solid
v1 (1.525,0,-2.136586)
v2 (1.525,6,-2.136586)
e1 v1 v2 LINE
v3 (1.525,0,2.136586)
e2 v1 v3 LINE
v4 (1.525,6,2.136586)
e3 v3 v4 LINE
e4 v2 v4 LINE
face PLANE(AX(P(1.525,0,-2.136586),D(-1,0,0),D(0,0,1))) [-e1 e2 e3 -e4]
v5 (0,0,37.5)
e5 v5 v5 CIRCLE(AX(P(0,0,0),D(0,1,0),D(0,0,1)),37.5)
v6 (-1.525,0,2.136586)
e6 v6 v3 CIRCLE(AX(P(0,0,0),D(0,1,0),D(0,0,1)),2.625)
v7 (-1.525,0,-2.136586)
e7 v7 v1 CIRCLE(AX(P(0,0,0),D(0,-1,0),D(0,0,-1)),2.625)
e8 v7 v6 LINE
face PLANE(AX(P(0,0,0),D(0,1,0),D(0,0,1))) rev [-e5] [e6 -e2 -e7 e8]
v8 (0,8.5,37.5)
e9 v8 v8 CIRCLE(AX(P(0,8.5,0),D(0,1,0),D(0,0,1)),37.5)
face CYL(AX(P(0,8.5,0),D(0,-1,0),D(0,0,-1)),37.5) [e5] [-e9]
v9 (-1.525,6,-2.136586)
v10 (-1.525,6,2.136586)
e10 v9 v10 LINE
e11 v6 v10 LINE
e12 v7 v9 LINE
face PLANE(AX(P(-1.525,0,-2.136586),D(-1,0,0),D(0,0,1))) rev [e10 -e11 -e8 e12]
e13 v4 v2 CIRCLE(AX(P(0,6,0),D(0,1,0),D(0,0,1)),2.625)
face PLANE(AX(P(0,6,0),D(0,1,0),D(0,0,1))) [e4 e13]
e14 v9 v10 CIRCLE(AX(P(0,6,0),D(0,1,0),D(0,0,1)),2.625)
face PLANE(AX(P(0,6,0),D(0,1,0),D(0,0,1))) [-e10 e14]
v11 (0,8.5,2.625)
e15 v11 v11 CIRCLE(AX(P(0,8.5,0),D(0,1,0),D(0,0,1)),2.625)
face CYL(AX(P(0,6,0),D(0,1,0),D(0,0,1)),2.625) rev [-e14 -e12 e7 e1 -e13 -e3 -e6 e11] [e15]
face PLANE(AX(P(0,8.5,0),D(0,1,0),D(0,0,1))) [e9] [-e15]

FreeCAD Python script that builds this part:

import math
import FreeCAD as App
import Part
import Sketcher

doc = App.newDocument("Part")
body = doc.addObject("PartDesign::Body", "Body")

# Sketch on XZ plane
sketch1 = body.newObject("Sketcher::SketchObject", "Sketch")
sketch1.AttachmentSupport = (doc.getObject("XZ_Plane"), [""])
sketch1.MapMode = "FlatFace"
sketch1.addGeometry(Part.Circle(App.Vector(0, 0, 0), App.Vector(0, 0, 1), 38), False)
sketch1.addConstraint(Sketcher.Constraint("Coincident", 0, 3, -1, 1))
sketch1.addConstraint(Sketcher.Constraint("Diameter", 0, 75.0))
pad1 = body.newObject("PartDesign::Pad", "Pad")
pad1.Profile = sketch1
pad1.Length = 8.5
pad1.Reversed = True

# Sketch on XZ plane
sketch2 = body.newObject("Sketcher::SketchObject", "Sketch001")
sketch2.AttachmentSupport = (doc.getObject("XZ_Plane"), [""])
sketch2.MapMode = "FlatFace"
sketch2.AttachmentOffset = App.Placement(App.Vector(0, 0, -8.5), App.Rotation())
sketch2.addGeometry(Part.Circle(App.Vector(0, 0, 0), App.Vector(0, 0, 1), 2.6), False)
sketch2.addConstraint(Sketcher.Constraint("Coincident", 0, 3, -1, 1))
sketch2.addConstraint(Sketcher.Constraint("Diameter", 0, 5.25))
pocket1 = body.newObject("PartDesign::Pocket", "Pocket")
pocket1.Profile = sketch2
pocket1.Length = 2.5
pocket1.Reversed = True

# Sketch on XZ plane
sketch3 = body.newObject("Sketcher::SketchObject", "Sketch002")
sketch3.AttachmentSupport = (doc.getObject("XZ_Plane"), [""])
sketch3.MapMode = "FlatFace"
sketch3.AttachmentOffset = App.Placement(App.Vector(0, 0, -6), App.Rotation())
sketch3.addGeometry(Part.LineSegment(App.Vector(-1.5, -2.1, 0), App.Vector(-1.5, 2.1, 0)), False)
sketch3.addGeometry(Part.ArcOfCircle(Part.Circle(App.Vector(0, 0, 0), App.Vector(0, 0, 1), 2.6), math.radians(54), math.radians(126)), False)
sketch3.addGeometry(Part.LineSegment(App.Vector(1.5, 2.1, 0), App.Vector(1.5, -2.1, 0)), False)
sketch3.addGeometry(Part.ArcOfCircle(Part.Circle(App.Vector(0, 0, 0), App.Vector(0, 0, 1), 2.6), math.radians(-126), math.radians(-54)), False)
sketch3.addConstraint(Sketcher.Constraint("Coincident", 0, 2, 1, 2))
sketch3.addConstraint(Sketcher.Constraint("Coincident", 1, 1, 2, 1))
sketch3.addConstraint(Sketcher.Constraint("Coincident", 2, 2, 3, 2))
sketch3.addConstraint(Sketcher.Constraint("Coincident", 3, 1, 0, 1))
sketch3.addConstraint(Sketcher.Constraint("Vertical", 0))
sketch3.addConstraint(Sketcher.Constraint("Vertical", 2))
sketch3.addConstraint(Sketcher.Constraint("Coincident", 1, 3, -1, 1))
sketch3.addConstraint(Sketcher.Constraint("Coincident", 3, 3, -1, 1))
sketch3.addConstraint(Sketcher.Constraint("Equal", 1, 3))
sketch3.addConstraint(Sketcher.Constraint("Horizontal", 0, 2, 1, 1))
sketch3.addConstraint(Sketcher.Constraint("Radius", 1, 2.625))
sketch3.addConstraint(Sketcher.Constraint("DistanceX", 0, 2, 1, 1, 3.05))
pocket2 = body.newObject("PartDesign::Pocket", "Pocket001")
pocket2.Profile = sketch3
pocket2.Length = 6
pocket2.Reversed = True

doc.recompute()
